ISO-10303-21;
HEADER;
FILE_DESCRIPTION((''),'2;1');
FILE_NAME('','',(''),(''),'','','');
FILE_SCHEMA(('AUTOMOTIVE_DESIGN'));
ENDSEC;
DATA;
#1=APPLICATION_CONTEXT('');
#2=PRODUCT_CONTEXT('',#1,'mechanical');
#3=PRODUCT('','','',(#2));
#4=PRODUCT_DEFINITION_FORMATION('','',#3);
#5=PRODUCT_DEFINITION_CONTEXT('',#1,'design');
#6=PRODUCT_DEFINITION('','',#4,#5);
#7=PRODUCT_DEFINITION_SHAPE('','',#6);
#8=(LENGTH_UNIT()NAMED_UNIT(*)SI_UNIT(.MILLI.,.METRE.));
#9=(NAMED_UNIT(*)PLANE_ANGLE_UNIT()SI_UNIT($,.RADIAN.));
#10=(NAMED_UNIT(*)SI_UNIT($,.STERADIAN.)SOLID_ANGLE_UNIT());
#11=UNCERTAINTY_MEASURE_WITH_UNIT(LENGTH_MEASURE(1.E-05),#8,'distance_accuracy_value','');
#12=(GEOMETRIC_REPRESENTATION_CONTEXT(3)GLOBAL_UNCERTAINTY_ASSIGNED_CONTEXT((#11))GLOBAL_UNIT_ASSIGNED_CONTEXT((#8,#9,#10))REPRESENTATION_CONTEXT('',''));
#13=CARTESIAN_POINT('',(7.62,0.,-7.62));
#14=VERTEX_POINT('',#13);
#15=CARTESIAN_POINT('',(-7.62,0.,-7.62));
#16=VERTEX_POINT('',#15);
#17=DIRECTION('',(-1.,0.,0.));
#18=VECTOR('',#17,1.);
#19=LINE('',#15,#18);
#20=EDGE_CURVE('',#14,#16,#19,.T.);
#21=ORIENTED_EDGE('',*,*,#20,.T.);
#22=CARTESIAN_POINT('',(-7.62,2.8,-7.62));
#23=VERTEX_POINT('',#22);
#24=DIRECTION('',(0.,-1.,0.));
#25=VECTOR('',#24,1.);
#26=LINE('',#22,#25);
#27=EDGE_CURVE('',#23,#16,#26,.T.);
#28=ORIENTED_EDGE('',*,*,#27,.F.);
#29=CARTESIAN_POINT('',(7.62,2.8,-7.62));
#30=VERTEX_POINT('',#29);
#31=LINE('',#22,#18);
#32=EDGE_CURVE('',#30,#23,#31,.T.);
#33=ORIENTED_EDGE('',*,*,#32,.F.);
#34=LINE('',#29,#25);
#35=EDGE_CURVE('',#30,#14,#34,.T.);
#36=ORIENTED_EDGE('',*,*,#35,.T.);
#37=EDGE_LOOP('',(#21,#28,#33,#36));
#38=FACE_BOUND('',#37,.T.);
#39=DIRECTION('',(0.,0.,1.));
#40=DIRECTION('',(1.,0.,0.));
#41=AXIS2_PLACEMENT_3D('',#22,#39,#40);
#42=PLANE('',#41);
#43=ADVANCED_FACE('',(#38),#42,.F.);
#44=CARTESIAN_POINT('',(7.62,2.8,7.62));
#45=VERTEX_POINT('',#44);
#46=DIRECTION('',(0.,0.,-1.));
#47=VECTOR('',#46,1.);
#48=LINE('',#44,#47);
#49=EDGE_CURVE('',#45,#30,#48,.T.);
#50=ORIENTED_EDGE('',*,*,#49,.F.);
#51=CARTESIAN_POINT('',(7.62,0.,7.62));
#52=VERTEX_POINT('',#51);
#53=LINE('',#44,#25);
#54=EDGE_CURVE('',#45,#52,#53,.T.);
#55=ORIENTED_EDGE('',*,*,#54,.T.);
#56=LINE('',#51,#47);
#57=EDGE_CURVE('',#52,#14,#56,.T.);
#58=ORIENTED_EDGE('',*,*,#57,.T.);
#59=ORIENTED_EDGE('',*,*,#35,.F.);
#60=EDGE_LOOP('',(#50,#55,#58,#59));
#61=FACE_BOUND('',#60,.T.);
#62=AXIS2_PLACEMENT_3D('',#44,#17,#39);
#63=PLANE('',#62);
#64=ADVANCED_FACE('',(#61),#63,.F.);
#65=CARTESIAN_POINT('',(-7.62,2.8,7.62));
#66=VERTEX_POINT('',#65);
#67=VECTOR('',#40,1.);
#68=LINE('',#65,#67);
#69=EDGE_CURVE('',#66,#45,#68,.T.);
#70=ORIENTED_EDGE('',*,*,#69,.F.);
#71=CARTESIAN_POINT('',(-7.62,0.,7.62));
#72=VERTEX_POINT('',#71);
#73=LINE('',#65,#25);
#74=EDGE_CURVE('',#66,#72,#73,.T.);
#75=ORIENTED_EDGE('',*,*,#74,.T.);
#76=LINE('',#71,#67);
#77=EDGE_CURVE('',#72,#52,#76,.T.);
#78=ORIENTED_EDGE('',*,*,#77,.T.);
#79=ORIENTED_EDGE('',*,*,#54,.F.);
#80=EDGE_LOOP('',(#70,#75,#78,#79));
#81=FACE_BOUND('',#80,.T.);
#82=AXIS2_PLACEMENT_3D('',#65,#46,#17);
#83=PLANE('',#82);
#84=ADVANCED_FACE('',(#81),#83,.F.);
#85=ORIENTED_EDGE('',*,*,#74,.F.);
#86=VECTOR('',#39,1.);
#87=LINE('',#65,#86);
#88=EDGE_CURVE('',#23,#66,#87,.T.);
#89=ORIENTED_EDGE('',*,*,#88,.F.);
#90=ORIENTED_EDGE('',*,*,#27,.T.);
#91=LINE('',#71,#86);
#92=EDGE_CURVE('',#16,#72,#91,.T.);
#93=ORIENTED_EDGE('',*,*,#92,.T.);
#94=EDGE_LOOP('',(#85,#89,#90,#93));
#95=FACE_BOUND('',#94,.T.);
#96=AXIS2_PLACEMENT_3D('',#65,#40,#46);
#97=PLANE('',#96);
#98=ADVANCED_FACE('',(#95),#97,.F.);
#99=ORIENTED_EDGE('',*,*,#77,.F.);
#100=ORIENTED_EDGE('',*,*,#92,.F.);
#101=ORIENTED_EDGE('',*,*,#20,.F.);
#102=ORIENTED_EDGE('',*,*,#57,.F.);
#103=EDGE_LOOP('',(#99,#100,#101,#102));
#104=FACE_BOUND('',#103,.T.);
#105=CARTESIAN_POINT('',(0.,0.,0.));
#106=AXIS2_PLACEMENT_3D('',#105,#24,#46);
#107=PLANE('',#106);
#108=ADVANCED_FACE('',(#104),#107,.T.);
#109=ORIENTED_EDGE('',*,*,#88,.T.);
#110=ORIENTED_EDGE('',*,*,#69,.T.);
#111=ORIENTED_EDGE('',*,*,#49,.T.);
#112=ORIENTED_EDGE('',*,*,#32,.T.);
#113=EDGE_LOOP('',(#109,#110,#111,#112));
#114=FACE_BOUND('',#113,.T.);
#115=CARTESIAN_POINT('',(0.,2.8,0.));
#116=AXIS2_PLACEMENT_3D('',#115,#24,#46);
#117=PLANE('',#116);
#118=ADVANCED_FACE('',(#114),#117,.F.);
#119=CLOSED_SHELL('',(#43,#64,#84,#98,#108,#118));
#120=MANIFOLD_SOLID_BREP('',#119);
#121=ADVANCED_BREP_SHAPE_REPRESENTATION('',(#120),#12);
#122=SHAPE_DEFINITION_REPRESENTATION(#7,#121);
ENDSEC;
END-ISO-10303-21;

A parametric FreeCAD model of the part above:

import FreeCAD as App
import Part
import Sketcher
Q = App.Units.Quantity

doc = App.newDocument("Part")
body = doc.addObject("PartDesign::Body", "Body")

sketch1 = doc.addObject("Sketcher::SketchObject", "Sketch")
body.addObject(sketch1)
sketch1.AttachmentSupport = (doc.XZ_Plane, [""])
sketch1.MapMode = "FlatFace"
sketch1.addGeometry([
    Part.LineSegment(App.Vector(-8, -8, 0), App.Vector(-8, 8, 0)),
    Part.LineSegment(App.Vector(-8, 8, 0), App.Vector(8, 8, 0)),
    Part.LineSegment(App.Vector(8, 8, 0), App.Vector(8, -8, 0)),
    Part.LineSegment(App.Vector(8, -8, 0), App.Vector(-8, -8, 0)),
], False)
sketch1.addConstraint([
    Sketcher.Constraint("Coincident", 0, 2, 1, 1),
    Sketcher.Constraint("Coincident", 1, 2, 2, 1),
    Sketcher.Constraint("Coincident", 2, 2, 3, 1),
    Sketcher.Constraint("Coincident", 3, 2, 0, 1),
    Sketcher.Constraint("Vertical", 0),
    Sketcher.Constraint("Horizontal", 1),
    Sketcher.Constraint("Vertical", 2),
    Sketcher.Constraint("Horizontal", 3),
    Sketcher.Constraint("Symmetric", 0, 2, 2, 2, -1, 1),
    Sketcher.Constraint("Equal", 3, 0),
    Sketcher.Constraint("DistanceX", 1, 1, 1, 2, Q("15.24 mm")),
])
pad1 = doc.addObject("PartDesign::Pad", "Pad")
body.addObject(pad1)
pad1.Profile = sketch1
pad1.Length = 2.8
pad1.Reversed = True

doc.recompute()
